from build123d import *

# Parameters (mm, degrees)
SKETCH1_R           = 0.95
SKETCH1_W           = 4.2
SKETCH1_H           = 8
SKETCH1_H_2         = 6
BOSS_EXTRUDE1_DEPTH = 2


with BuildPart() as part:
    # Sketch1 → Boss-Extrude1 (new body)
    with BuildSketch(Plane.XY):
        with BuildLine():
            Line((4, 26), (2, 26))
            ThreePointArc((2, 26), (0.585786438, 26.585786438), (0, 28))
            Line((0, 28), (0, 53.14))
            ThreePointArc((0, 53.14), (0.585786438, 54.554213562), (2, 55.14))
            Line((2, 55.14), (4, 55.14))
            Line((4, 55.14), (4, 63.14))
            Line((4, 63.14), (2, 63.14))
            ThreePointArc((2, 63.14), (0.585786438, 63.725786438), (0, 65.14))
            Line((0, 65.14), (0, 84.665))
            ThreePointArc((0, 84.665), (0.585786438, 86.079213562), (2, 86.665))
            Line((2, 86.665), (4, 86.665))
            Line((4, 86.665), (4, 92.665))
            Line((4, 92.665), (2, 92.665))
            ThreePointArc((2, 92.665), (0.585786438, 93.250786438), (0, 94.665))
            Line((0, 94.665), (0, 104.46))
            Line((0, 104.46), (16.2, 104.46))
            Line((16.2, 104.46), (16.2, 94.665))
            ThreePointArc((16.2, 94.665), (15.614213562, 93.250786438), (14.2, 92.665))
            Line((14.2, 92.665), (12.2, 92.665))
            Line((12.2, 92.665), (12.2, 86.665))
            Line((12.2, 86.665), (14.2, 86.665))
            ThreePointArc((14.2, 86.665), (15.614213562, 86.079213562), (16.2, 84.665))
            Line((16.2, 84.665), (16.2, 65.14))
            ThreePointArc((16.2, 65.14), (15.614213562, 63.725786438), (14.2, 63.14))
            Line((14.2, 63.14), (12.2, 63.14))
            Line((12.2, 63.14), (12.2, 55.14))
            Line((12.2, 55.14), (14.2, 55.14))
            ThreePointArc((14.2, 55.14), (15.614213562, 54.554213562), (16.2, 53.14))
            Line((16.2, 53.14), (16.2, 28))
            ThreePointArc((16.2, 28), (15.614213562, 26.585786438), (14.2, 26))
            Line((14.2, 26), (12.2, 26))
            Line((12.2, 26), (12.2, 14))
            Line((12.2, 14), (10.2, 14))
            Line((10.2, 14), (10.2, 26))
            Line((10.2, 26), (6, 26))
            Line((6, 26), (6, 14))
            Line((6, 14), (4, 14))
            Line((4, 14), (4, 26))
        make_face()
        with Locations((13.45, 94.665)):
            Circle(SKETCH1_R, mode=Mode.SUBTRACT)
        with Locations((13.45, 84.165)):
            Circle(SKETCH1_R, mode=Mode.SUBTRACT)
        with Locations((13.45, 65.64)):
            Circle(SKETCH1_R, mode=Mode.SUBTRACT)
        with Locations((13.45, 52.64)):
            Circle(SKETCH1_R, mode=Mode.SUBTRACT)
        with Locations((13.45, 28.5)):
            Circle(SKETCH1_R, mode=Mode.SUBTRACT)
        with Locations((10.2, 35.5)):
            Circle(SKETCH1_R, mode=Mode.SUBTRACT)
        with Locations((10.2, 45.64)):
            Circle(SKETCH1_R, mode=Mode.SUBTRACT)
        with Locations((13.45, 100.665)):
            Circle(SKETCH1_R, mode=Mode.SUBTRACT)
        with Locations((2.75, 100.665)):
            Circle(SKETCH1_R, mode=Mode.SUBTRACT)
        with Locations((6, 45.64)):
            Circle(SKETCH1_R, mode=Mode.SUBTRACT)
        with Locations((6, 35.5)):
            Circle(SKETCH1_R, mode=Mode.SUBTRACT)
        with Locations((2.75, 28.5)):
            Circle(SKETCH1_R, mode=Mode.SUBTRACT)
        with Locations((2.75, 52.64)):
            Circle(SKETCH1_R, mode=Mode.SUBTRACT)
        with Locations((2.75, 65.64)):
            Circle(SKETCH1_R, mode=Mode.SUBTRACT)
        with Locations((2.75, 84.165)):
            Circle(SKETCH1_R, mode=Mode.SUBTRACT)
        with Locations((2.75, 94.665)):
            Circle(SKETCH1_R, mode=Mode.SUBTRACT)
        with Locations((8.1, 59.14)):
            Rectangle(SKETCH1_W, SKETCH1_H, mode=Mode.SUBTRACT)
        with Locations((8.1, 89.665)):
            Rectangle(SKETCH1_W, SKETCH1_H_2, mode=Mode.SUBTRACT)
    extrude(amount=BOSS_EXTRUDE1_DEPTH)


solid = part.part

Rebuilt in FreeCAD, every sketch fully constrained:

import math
import FreeCAD as App
import Part
import Sketcher

doc = App.newDocument("Part")
params = doc.addObject("Spreadsheet::Sheet", "Params")
for row, (alias, value) in enumerate([
    ("sketch1_radius", "2 mm"),
    ("sketch1_diameter", "1.9 mm"),
    ("sketch1_width", "2 mm"),
    ("sketch1_height", "12 mm"),
    ("sketch1_height2", "8 mm"),
    ("pad1_length", "2 mm"),
], start=1):
    params.set(f"A{row}", alias)
    params.set(f"B{row}", "=" + value)
    params.setAlias(f"B{row}", alias)

body = doc.addObject("PartDesign::Body", "Body")

sketch1 = doc.addObject("Sketcher::SketchObject", "Sketch")
body.addObject(sketch1)
sketch1.AttachmentSupport = (doc.XY_Plane, [""])
sketch1.MapMode = "FlatFace"
sketch1.addGeometry(Part.LineSegment(App.Vector(2, 26, 0), App.Vector(4, 26, 0)), False)
sketch1.addGeometry(Part.LineSegment(App.Vector(4, 26, 0), App.Vector(4, 14, 0)), False)
sketch1.addGeometry(Part.LineSegment(App.Vector(4, 14, 0), App.Vector(6, 14, 0)), False)
sketch1.addGeometry(Part.LineSegment(App.Vector(6, 14, 0), App.Vector(6, 26, 0)), False)
sketch1.addGeometry(Part.LineSegment(App.Vector(6, 26, 0), App.Vector(10.2, 26, 0)), False)
sketch1.addGeometry(Part.LineSegment(App.Vector(10.2, 26, 0), App.Vector(10.2, 14, 0)), False)
sketch1.addGeometry(Part.LineSegment(App.Vector(10.2, 14, 0), App.Vector(12.2, 14, 0)), False)
sketch1.addGeometry(Part.LineSegment(App.Vector(12.2, 14, 0), App.Vector(12.2, 26, 0)), False)
sketch1.addGeometry(Part.LineSegment(App.Vector(12.2, 26, 0), App.Vector(14.2, 26, 0)), False)
sketch1.addGeometry(Part.ArcOfCircle(Part.Circle(App.Vector(14.2, 28, 0), App.Vector(0, 0, 1), 2), math.radians(-90), math.radians(0)), False)
sketch1.addGeometry(Part.LineSegment(App.Vector(16.2, 28, 0), App.Vector(16.2, 53.14, 0)), False)
sketch1.addGeometry(Part.ArcOfCircle(Part.Circle(App.Vector(14.2, 53.14, 0), App.Vector(0, 0, 1), 2), math.radians(0), math.radians(90)), False)
sketch1.addGeometry(Part.LineSegment(App.Vector(14.2, 55.14, 0), App.Vector(12.2, 55.14, 0)), False)
sketch1.addGeometry(Part.LineSegment(App.Vector(12.2, 55.14, 0), App.Vector(12.2, 63.14, 0)), False)
sketch1.addGeometry(Part.LineSegment(App.Vector(12.2, 63.14, 0), App.Vector(14.2, 63.14, 0)), False)
sketch1.addGeometry(Part.ArcOfCircle(Part.Circle(App.Vector(14.2, 65.14, 0), App.Vector(0, 0, 1), 2), math.radians(-90), math.radians(0)), False)
sketch1.addGeometry(Part.LineSegment(App.Vector(16.2, 65.14, 0), App.Vector(16.2, 84.665, 0)), False)
sketch1.addGeometry(Part.ArcOfCircle(Part.Circle(App.Vector(14.2, 84.665, 0), App.Vector(0, 0, 1), 2), math.radians(0), math.radians(90)), False)
sketch1.addGeometry(Part.LineSegment(App.Vector(14.2, 86.665, 0), App.Vector(12.2, 86.665, 0)), False)
sketch1.addGeometry(Part.LineSegment(App.Vector(12.2, 86.665, 0), App.Vector(12.2, 92.665, 0)), False)
sketch1.addGeometry(Part.LineSegment(App.Vector(12.2, 92.665, 0), App.Vector(14.2, 92.665, 0)), False)
sketch1.addGeometry(Part.ArcOfCircle(Part.Circle(App.Vector(14.2, 94.665, 0), App.Vector(0, 0, 1), 2), math.radians(-90), math.radians(0)), False)
sketch1.addGeometry(Part.LineSegment(App.Vector(16.2, 94.665, 0), App.Vector(16.2, 104.46, 0)), False)
sketch1.addGeometry(Part.LineSegment(App.Vector(16.2, 104.46, 0), App.Vector(0, 104.46, 0)), False)
sketch1.addGeometry(Part.LineSegment(App.Vector(0, 104.46, 0), App.Vector(0, 94.665, 0)), False)
sketch1.addGeometry(Part.ArcOfCircle(Part.Circle(App.Vector(2, 94.665, 0), App.Vector(0, 0, 1), 2), math.radians(-180), math.radians(-90)), False)
sketch1.addGeometry(Part.LineSegment(App.Vector(2, 92.665, 0), App.Vector(4, 92.665, 0)), False)
sketch1.addGeometry(Part.LineSegment(App.Vector(4, 92.665, 0), App.Vector(4, 86.665, 0)), False)
sketch1.addGeometry(Part.LineSegment(App.Vector(4, 86.665, 0), App.Vector(2, 86.665, 0)), False)
sketch1.addGeometry(Part.ArcOfCircle(Part.Circle(App.Vector(2, 84.665, 0), App.Vector(0, 0, 1), 2), math.radians(90), math.radians(180)), False)
sketch1.addGeometry(Part.LineSegment(App.Vector(0, 84.665, 0), App.Vector(0, 65.14, 0)), False)
sketch1.addGeometry(Part.ArcOfCircle(Part.Circle(App.Vector(2, 65.14, 0), App.Vector(0, 0, 1), 2), math.radians(-180), math.radians(-90)), False)
sketch1.addGeometry(Part.LineSegment(App.Vector(2, 63.14, 0), App.Vector(4, 63.14, 0)), False)
sketch1.addGeometry(Part.LineSegment(App.Vector(4, 63.14, 0), App.Vector(4, 55.14, 0)), False)
sketch1.addGeometry(Part.LineSegment(App.Vector(4, 55.14, 0), App.Vector(2, 55.14, 0)), False)
sketch1.addGeometry(Part.ArcOfCircle(Part.Circle(App.Vector(2, 53.14, 0), App.Vector(0, 0, 1), 2), math.radians(90), math.radians(180)), False)
sketch1.addGeometry(Part.LineSegment(App.Vector(0, 53.14, 0), App.Vector(0, 28, 0)), False)
sketch1.addGeometry(Part.ArcOfCircle(Part.Circle(App.Vector(2, 28, 0), App.Vector(0, 0, 1), 2), math.radians(-180), math.radians(-90)), False)
sketch1.addGeometry(Part.Circle(App.Vector(13.45, 28.5, 0), App.Vector(0, 0, 1), 0.95), False)
sketch1.addGeometry(Part.Circle(App.Vector(10.2, 35.5, 0), App.Vector(0, 0, 1), 0.95), False)
sketch1.addGeometry(Part.Circle(App.Vector(10.2, 45.64, 0), App.Vector(0, 0, 1), 0.95), False)
sketch1.addGeometry(Part.Circle(App.Vector(13.45, 52.64, 0), App.Vector(0, 0, 1), 0.95), False)
sketch1.addGeometry(Part.Circle(App.Vector(6, 35.5, 0), App.Vector(0, 0, 1), 0.95), False)
sketch1.addGeometry(Part.Circle(App.Vector(6, 45.64, 0), App.Vector(0, 0, 1), 0.95), False)
sketch1.addGeometry(Part.Circle(App.Vector(2.75, 28.5, 0), App.Vector(0, 0, 1), 0.95), False)
sketch1.addGeometry(Part.LineSegment(App.Vector(6, 55.14, 0), App.Vector(6, 63.14, 0)), False)
sketch1.addGeometry(Part.LineSegment(App.Vector(6, 63.14, 0), App.Vector(10.2, 63.14, 0)), False)
sketch1.addGeometry(Part.LineSegment(App.Vector(10.2, 63.14, 0), App.Vector(10.2, 55.14, 0)), False)
sketch1.addGeometry(Part.LineSegment(App.Vector(10.2, 55.14, 0), App.Vector(6, 55.14, 0)), False)
sketch1.addGeometry(Part.Circle(App.Vector(2.75, 52.64, 0), App.Vector(0, 0, 1), 0.95), False)
sketch1.addGeometry(Part.Circle(App.Vector(13.45, 65.64, 0), App.Vector(0, 0, 1), 0.95), False)
sketch1.addGeometry(Part.Circle(App.Vector(13.45, 84.165, 0), App.Vector(0, 0, 1), 0.95), False)
sketch1.addGeometry(Part.Circle(App.Vector(13.45, 94.665, 0), App.Vector(0, 0, 1), 0.95), False)
sketch1.addGeometry(Part.Circle(App.Vector(13.45, 100.665, 0), App.Vector(0, 0, 1), 0.95), False)
sketch1.addGeometry(Part.Circle(App.Vector(2.75, 65.64, 0), App.Vector(0, 0, 1), 0.95), False)
sketch1.addGeometry(Part.LineSegment(App.Vector(6, 86.665, 0), App.Vector(6, 92.665, 0)), False)
sketch1.addGeometry(Part.LineSegment(App.Vector(6, 92.665, 0), App.Vector(10.2, 92.665, 0)), False)
sketch1.addGeometry(Part.LineSegment(App.Vector(10.2, 92.665, 0), App.Vector(10.2, 86.665, 0)), False)
sketch1.addGeometry(Part.LineSegment(App.Vector(10.2, 86.665, 0), App.Vector(6, 86.665, 0)), False)
sketch1.addGeometry(Part.Circle(App.Vector(2.75, 84.165, 0), App.Vector(0, 0, 1), 0.95), False)
sketch1.addGeometry(Part.Circle(App.Vector(2.75, 94.665, 0), App.Vector(0, 0, 1), 0.95), False)
sketch1.addGeometry(Part.Circle(App.Vector(2.75, 100.665, 0), App.Vector(0, 0, 1), 0.95), False)
sketch1.addConstraint(Sketcher.Constraint("Coincident", 0, 2, 1, 1))
sketch1.addConstraint(Sketcher.Constraint("Coincident", 1, 2, 2, 1))
sketch1.addConstraint(Sketcher.Constraint("Coincident", 2, 2, 3, 1))
sketch1.addConstraint(Sketcher.Constraint("Coincident", 3, 2, 4, 1))
sketch1.addConstraint(Sketcher.Constraint("Coincident", 4, 2, 5, 1))
sketch1.addConstraint(Sketcher.Constraint("Coincident", 5, 2, 6, 1))
sketch1.addConstraint(Sketcher.Constraint("Coincident", 6, 2, 7, 1))
sketch1.addConstraint(Sketcher.Constraint("Coincident", 7, 2, 8, 1))
sketch1.addConstraint(Sketcher.Constraint("Tangent", 8, 2, 9, 1))
sketch1.addConstraint(Sketcher.Constraint("Tangent", 9, 2, 10, 1))
sketch1.addConstraint(Sketcher.Constraint("Tangent", 10, 2, 11, 1))
sketch1.addConstraint(Sketcher.Constraint("Tangent", 11, 2, 12, 1))
sketch1.addConstraint(Sketcher.Constraint("Coincident", 12, 2, 13, 1))
sketch1.addConstraint(Sketcher.Constraint("Coincident", 13, 2, 14, 1))
sketch1.addConstraint(Sketcher.Constraint("Tangent", 14, 2, 15, 1))
sketch1.addConstraint(Sketcher.Constraint("Tangent", 15, 2, 16, 1))
sketch1.addConstraint(Sketcher.Constraint("Tangent", 16, 2, 17, 1))
sketch1.addConstraint(Sketcher.Constraint("Tangent", 17, 2, 18, 1))
sketch1.addConstraint(Sketcher.Constraint("Coincident", 18, 2, 19, 1))
sketch1.addConstraint(Sketcher.Constraint("Coincident", 19, 2, 20, 1))
sketch1.addConstraint(Sketcher.Constraint("Tangent", 20, 2, 21, 1))
sketch1.addConstraint(Sketcher.Constraint("Tangent", 21, 2, 22, 1))
sketch1.addConstraint(Sketcher.Constraint("Coincident", 22, 2, 23, 1))
sketch1.addConstraint(Sketcher.Constraint("Coincident", 23, 2, 24, 1))
sketch1.addConstraint(Sketcher.Constraint("Tangent", 24, 2, 25, 1))
sketch1.addConstraint(Sketcher.Constraint("Tangent", 25, 2, 26, 1))
sketch1.addConstraint(Sketcher.Constraint("Coincident", 26, 2, 27, 1))
sketch1.addConstraint(Sketcher.Constraint("Coincident", 27, 2, 28, 1))
sketch1.addConstraint(Sketcher.Constraint("Tangent", 28, 2, 29, 1))
sketch1.addConstraint(Sketcher.Constraint("Tangent", 29, 2, 30, 1))
sketch1.addConstraint(Sketcher.Constraint("Tangent", 30, 2, 31, 1))
sketch1.addConstraint(Sketcher.Constraint("Tangent", 31, 2, 32, 1))
sketch1.addConstraint(Sketcher.Constraint("Coincident", 32, 2, 33, 1))
sketch1.addConstraint(Sketcher.Constraint("Coincident", 33, 2, 34, 1))
sketch1.addConstraint(Sketcher.Constraint("Tangent", 34, 2, 35, 1))
sketch1.addConstraint(Sketcher.Constraint("Tangent", 35, 2, 36, 1))
sketch1.addConstraint(Sketcher.Constraint("Tangent", 36, 2, 37, 1))
sketch1.addConstraint(Sketcher.Constraint("Tangent", 37, 2, 0, 1))
sketch1.addConstraint(Sketcher.Constraint("Coincident", 45, 2, 46, 1))
sketch1.addConstraint(Sketcher.Constraint("Coincident", 46, 2, 47, 1))
sketch1.addConstraint(Sketcher.Constraint("Coincident", 47, 2, 48, 1))
sketch1.addConstraint(Sketcher.Constraint("Coincident", 48, 2, 45, 1))
sketch1.addConstraint(Sketcher.Constraint("Coincident", 55, 2, 56, 1))
sketch1.addConstraint(Sketcher.Constraint("Coincident", 56, 2, 57, 1))
sketch1.addConstraint(Sketcher.Constraint("Coincident", 57, 2, 58, 1))
sketch1.addConstraint(Sketcher.Constraint("Coincident", 58, 2, 55, 1))
sketch1.addConstraint(Sketcher.Constraint("Horizontal", 0))
sketch1.addConstraint(Sketcher.Constraint("Vertical", 1))
sketch1.addConstraint(Sketcher.Constraint("Horizontal", 2))
sketch1.addConstraint(Sketcher.Constraint("Vertical", 3))
sketch1.addConstraint(Sketcher.Constraint("Horizontal", 4))
sketch1.addConstraint(Sketcher.Constraint("Vertical", 5))
sketch1.addConstraint(Sketcher.Constraint("Horizontal", 6))
sketch1.addConstraint(Sketcher.Constraint("Vertical", 7))
sketch1.addConstraint(Sketcher.Constraint("Horizontal", 8))
sketch1.addConstraint(Sketcher.Constraint("Vertical", 10))
sketch1.addConstraint(Sketcher.Constraint("Horizontal", 12))
sketch1.addConstraint(Sketcher.Constraint("Vertical", 13))
sketch1.addConstraint(Sketcher.Constraint("Horizontal", 14))
sketch1.addConstraint(Sketcher.Constraint("Vertical", 16))
sketch1.addConstraint(Sketcher.Constraint("Horizontal", 18))
sketch1.addConstraint(Sketcher.Constraint("Vertical", 19))
sketch1.addConstraint(Sketcher.Constraint("Horizontal", 20))
sketch1.addConstraint(Sketcher.Constraint("Vertical", 22))
sketch1.addConstraint(Sketcher.Constraint("Horizontal", 23))
sketch1.addConstraint(Sketcher.Constraint("Vertical", 24))
sketch1.addConstraint(Sketcher.Constraint("Horizontal", 26))
sketch1.addConstraint(Sketcher.Constraint("Vertical", 27))
sketch1.addConstraint(Sketcher.Constraint("Horizontal", 28))
sketch1.addConstraint(Sketcher.Constraint("Vertical", 30))
sketch1.addConstraint(Sketcher.Constraint("Horizontal", 32))
sketch1.addConstraint(Sketcher.Constraint("Vertical", 33))
sketch1.addConstraint(Sketcher.Constraint("Horizontal", 34))
sketch1.addConstraint(Sketcher.Constraint("Vertical", 36))
sketch1.addConstraint(Sketcher.Constraint("Vertical", 45))
sketch1.addConstraint(Sketcher.Constraint("Horizontal", 46))
sketch1.addConstraint(Sketcher.Constraint("Vertical", 47))
sketch1.addConstraint(Sketcher.Constraint("Horizontal", 48))
sketch1.addConstraint(Sketcher.Constraint("Vertical", 55))
sketch1.addConstraint(Sketcher.Constraint("Horizontal", 56))
sketch1.addConstraint(Sketcher.Constraint("Vertical", 57))
sketch1.addConstraint(Sketcher.Constraint("Horizontal", 58))
sketch1.addConstraint(Sketcher.Constraint("Equal", 9, 11))
sketch1.addConstraint(Sketcher.Constraint("Equal", 11, 15))
sketch1.addConstraint(Sketcher.Constraint("Equal", 15, 17))
sketch1.addConstraint(Sketcher.Constraint("Equal", 17, 21))
sketch1.addConstraint(Sketcher.Constraint("Equal", 21, 25))
sketch1.addConstraint(Sketcher.Constraint("Equal", 25, 29))
sketch1.addConstraint(Sketcher.Constraint("Equal", 29, 31))
sketch1.addConstraint(Sketcher.Constraint("Equal", 31, 35))
sketch1.addConstraint(Sketcher.Constraint("Equal", 35, 37))
sketch1.addConstraint(Sketcher.Constraint("Equal", 38, 39))
sketch1.addConstraint(Sketcher.Constraint("Equal", 39, 40))
sketch1.addConstraint(Sketcher.Constraint("Equal", 40, 41))
sketch1.addConstraint(Sketcher.Constraint("Equal", 41, 42))
sketch1.addConstraint(Sketcher.Constraint("Equal", 42, 43))
sketch1.addConstraint(Sketcher.Constraint("Equal", 43, 44))
sketch1.addConstraint(Sketcher.Constraint("Equal", 44, 49))
sketch1.addConstraint(Sketcher.Constraint("Equal", 49, 50))
sketch1.addConstraint(Sketcher.Constraint("Equal", 50, 51))
sketch1.addConstraint(Sketcher.Constraint("Equal", 51, 52))
sketch1.addConstraint(Sketcher.Constraint("Equal", 52, 53))
sketch1.addConstraint(Sketcher.Constraint("Equal", 53, 54))
sketch1.addConstraint(Sketcher.Constraint("Equal", 54, 59))
sketch1.addConstraint(Sketcher.Constraint("Equal", 59, 60))
sketch1.addConstraint(Sketcher.Constraint("Equal", 60, 61))
sketch1.addConstraint(Sketcher.Constraint("PointOnObject", 23, 2, -2))
sketch1.addConstraint(Sketcher.Constraint("PointOnObject", 29, 2, -2))
sketch1.addConstraint(Sketcher.Constraint("PointOnObject", 35, 2, -2))
sketch1.addConstraint(Sketcher.Constraint("Horizontal", 21, 3, 25, 3))
sketch1.addConstraint(Sketcher.Constraint("Horizontal", 17, 3, 29, 3))
sketch1.addConstraint(Sketcher.Constraint("Horizontal", 15, 3, 31, 3))
sketch1.addConstraint(Sketcher.Constraint("Horizontal", 11, 3, 35, 3))
sketch1.addConstraint(Sketcher.Constraint("Horizontal", 9, 3, 37, 3))
sketch1.addConstraint(Sketcher.Constraint("Horizontal", 39, 3, 42, 3))
sketch1.addConstraint(Sketcher.Constraint("Horizontal", 40, 3, 43, 3))
sketch1.addConstraint(Sketcher.Constraint("Horizontal", 38, 3, 44, 3))
sketch1.addConstraint(Sketcher.Constraint("Horizontal", 41, 3, 49, 3))
sketch1.addConstraint(Sketcher.Constraint("Horizontal", 25, 3, 52, 3))
sketch1.addConstraint(Sketcher.Constraint("Horizontal", 50, 3, 54, 3))
sketch1.addConstraint(Sketcher.Constraint("Horizontal", 51, 3, 59, 3))
sketch1.addConstraint(Sketcher.Constraint("Horizontal", 52, 3, 60, 3))
sketch1.addConstraint(Sketcher.Constraint("Horizontal", 53, 3, 61, 3))
sketch1.addConstraint(Sketcher.Constraint("Horizontal", 0, 2, 3, 2))
sketch1.addConstraint(Sketcher.Constraint("Horizontal", 2, 2, 5, 2))
sketch1.addConstraint(Sketcher.Constraint("Horizontal", 32, 2, 45, 2))
sketch1.addConstraint(Sketcher.Constraint("Horizontal", 34, 2, 47, 2))
sketch1.addConstraint(Sketcher.Constraint("Horizontal", 26, 2, 55, 2))
sketch1.addConstraint(Sketcher.Constraint("Horizontal", 28, 2, 57, 2))
sketch1.addConstraint(Sketcher.Constraint("Vertical", 11, 3, 15, 3))
sketch1.addConstraint(Sketcher.Constraint("Vertical", 17, 3, 21, 3))
sketch1.addConstraint(Sketcher.Constraint("Vertical", 39, 3, 40, 3))
sketch1.addConstraint(Sketcher.Constraint("Vertical", 38, 3, 41, 3))
sketch1.addConstraint(Sketcher.Constraint("Vertical", 42, 3, 43, 3))
sketch1.addConstraint(Sketcher.Constraint("Vertical", 44, 3, 49, 3))
sketch1.addConstraint(Sketcher.Constraint("Vertical", 41, 3, 50, 3))
sketch1.addConstraint(Sketcher.Constraint("Vertical", 50, 3, 51, 3))
sketch1.addConstraint(Sketcher.Constraint("Vertical", 51, 3, 52, 3))
sketch1.addConstraint(Sketcher.Constraint("Vertical", 52, 3, 53, 3))
sketch1.addConstraint(Sketcher.Constraint("Vertical", 49, 3, 54, 3))
sketch1.addConstraint(Sketcher.Constraint("Vertical", 54, 3, 59, 3))
sketch1.addConstraint(Sketcher.Constraint("Vertical", 59, 3, 60, 3))
sketch1.addConstraint(Sketcher.Constraint("Vertical", 60, 3, 61, 3))
sketch1.addConstraint(Sketcher.Constraint("Vertical", 43, 3, 2, 2))
sketch1.addConstraint(Sketcher.Constraint("Vertical", 40, 3, 4, 2))
sketch1.addConstraint(Sketcher.Constraint("Vertical", 7, 2, 12, 2))
sketch1.addConstraint(Sketcher.Constraint("Vertical", 13, 2, 18, 2))
sketch1.addConstraint(Sketcher.Constraint("Vertical", 1, 2, 26, 2))
sketch1.addConstraint(Sketcher.Constraint("Vertical", 27, 2, 32, 2))
sketch1.addConstraint(Sketcher.Constraint("Vertical", 3, 2, 45, 2))
sketch1.addConstraint(Sketcher.Constraint("Vertical", 5, 2, 46, 2))
sketch1.addConstraint(Sketcher.Constraint("Vertical", 48, 2, 55, 2))
sketch1.addConstraint(Sketcher.Constraint("Vertical", 47, 2, 56, 2))
sketch1.addConstraint(Sketcher.Constraint("Equal", 0, 2))
sketch1.addConstraint(Sketcher.Constraint("Equal", 2, 6))
sketch1.addConstraint(Sketcher.Constraint("Equal", 6, 8))
sketch1.addConstraint(Sketcher.Constraint("Radius", 9, 2.0))
sketch1.addConstraint(Sketcher.Constraint("Diameter", 38, 1.9))
sketch1.addConstraint(Sketcher.Constraint("DistanceX", 0, 1, 0, 2, 2.0))
sketch1.addConstraint(Sketcher.Constraint("DistanceY", 1, 2, 1, 1, 12.0))
sketch1.addConstraint(Sketcher.Constraint("DistanceY", 13, 1, 13, 2, 8.0))
sketch1.addConstraint(Sketcher.Constraint("DistanceY", 19, 1, 19, 2, 6.0))
sketch1.addConstraint(Sketcher.Constraint("DistanceX", 4, 1, 4, 2, 4.2))
sketch1.addConstraint(Sketcher.Constraint("DistanceY", -1, 1, 9, 3, 28.0))
sketch1.addConstraint(Sketcher.Constraint("DistanceY", 10, 1, 10, 2, 25.14))
sketch1.addConstraint(Sketcher.Constraint("DistanceY", -1, 1, 38, 3, 28.5))
sketch1.addConstraint(Sketcher.Constraint("DistanceY", -1, 1, 39, 3, 35.5))
sketch1.addConstraint(Sketcher.Constraint("DistanceY", 16, 1, 16, 2, 19.525))
sketch1.addConstraint(Sketcher.Constraint("DistanceY", 22, 1, 22, 2, 9.795))
sketch1.addConstraint(Sketcher.Constraint("DistanceX", -1, 1, 38, 3, 13.45))
sketch1.addConstraint(Sketcher.Constraint("DistanceY", -1, 1, 40, 3, 45.64))
sketch1.addConstraint(Sketcher.Constraint("DistanceY", -1, 1, 41, 3, 52.64))
sketch1.addConstraint(Sketcher.Constraint("DistanceX", -1, 1, 44, 3, 2.75))
sketch1.addConstraint(Sketcher.Constraint("DistanceY", -1, 1, 50, 3, 65.64))
sketch1.addConstraint(Sketcher.Constraint("DistanceY", -1, 1, 51, 3, 84.165))
sketch1.addConstraint(Sketcher.Constraint("DistanceY", -1, 1, 53, 3, 100.665))
sketch1.setExpression("Constraints[156]", "Params.sketch1_radius")
sketch1.setExpression("Constraints[157]", "Params.sketch1_diameter")
sketch1.setExpression("Constraints[158]", "Params.sketch1_width")
sketch1.setExpression("Constraints[159]", "Params.sketch1_height")
sketch1.setExpression("Constraints[160]", "Params.sketch1_height2")
pad1 = doc.addObject("PartDesign::Pad", "Pad")
body.addObject(pad1)
pad1.Profile = sketch1
pad1.setExpression("Length", "Params.pad1_length")

doc.recompute()
